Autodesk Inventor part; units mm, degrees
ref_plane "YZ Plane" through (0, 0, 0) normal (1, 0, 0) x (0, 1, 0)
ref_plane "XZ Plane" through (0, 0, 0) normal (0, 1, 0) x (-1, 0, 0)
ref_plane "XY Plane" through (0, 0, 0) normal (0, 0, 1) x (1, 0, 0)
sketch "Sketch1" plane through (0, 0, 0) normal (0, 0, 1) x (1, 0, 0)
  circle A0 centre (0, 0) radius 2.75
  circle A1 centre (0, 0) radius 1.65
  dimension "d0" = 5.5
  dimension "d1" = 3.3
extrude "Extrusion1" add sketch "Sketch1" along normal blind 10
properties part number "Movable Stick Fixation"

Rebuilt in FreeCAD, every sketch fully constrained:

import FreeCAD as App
import Part
import Sketcher
from FreeCAD import Vector

doc = App.newDocument("Part")
params = doc.addObject("Spreadsheet::Sheet", "Params")
for row, (alias, value) in enumerate([
    ("sketch1_diameter", "5.5 mm"),
    ("sketch1_diameter2", "3.3 mm"),
    ("pad1_length", "10 mm"),
], start=1):
    params.set(f"A{row}", alias)
    params.set(f"B{row}", "=" + value)
    params.setAlias(f"B{row}", alias)

body = doc.addObject("PartDesign::Body", "Body")

# Sketch on XY plane
sketch1 = doc.addObject("Sketcher::SketchObject", "Sketch")
body.addObject(sketch1)
sketch1.AttachmentSupport = (doc.XY_Plane, [""])
sketch1.MapMode = "FlatFace"
sketch1.addGeometry([
    Part.Circle(Vector(0, 0, 0), Vector(0, 0, 1), 2.75),
    Part.Circle(Vector(0, 0, 0), Vector(0, 0, 1), 1.65),
], False)
sketch1.addConstraint([
    Sketcher.Constraint("Coincident", 0, 3, -1, 1),
    Sketcher.Constraint("Coincident", 1, 3, -1, 1),
    Sketcher.Constraint("Diameter", 0, 5.5),
    Sketcher.Constraint("Diameter", 1, 3.3),
])
sketch1.setExpression("Constraints[2]", "Params.sketch1_diameter")
sketch1.setExpression("Constraints[3]", "Params.sketch1_diameter2")
pad1 = doc.addObject("PartDesign::Pad", "Pad")
body.addObject(pad1)
pad1.Profile = sketch1
pad1.setExpression("Length", "Params.pad1_length")

doc.recompute()
